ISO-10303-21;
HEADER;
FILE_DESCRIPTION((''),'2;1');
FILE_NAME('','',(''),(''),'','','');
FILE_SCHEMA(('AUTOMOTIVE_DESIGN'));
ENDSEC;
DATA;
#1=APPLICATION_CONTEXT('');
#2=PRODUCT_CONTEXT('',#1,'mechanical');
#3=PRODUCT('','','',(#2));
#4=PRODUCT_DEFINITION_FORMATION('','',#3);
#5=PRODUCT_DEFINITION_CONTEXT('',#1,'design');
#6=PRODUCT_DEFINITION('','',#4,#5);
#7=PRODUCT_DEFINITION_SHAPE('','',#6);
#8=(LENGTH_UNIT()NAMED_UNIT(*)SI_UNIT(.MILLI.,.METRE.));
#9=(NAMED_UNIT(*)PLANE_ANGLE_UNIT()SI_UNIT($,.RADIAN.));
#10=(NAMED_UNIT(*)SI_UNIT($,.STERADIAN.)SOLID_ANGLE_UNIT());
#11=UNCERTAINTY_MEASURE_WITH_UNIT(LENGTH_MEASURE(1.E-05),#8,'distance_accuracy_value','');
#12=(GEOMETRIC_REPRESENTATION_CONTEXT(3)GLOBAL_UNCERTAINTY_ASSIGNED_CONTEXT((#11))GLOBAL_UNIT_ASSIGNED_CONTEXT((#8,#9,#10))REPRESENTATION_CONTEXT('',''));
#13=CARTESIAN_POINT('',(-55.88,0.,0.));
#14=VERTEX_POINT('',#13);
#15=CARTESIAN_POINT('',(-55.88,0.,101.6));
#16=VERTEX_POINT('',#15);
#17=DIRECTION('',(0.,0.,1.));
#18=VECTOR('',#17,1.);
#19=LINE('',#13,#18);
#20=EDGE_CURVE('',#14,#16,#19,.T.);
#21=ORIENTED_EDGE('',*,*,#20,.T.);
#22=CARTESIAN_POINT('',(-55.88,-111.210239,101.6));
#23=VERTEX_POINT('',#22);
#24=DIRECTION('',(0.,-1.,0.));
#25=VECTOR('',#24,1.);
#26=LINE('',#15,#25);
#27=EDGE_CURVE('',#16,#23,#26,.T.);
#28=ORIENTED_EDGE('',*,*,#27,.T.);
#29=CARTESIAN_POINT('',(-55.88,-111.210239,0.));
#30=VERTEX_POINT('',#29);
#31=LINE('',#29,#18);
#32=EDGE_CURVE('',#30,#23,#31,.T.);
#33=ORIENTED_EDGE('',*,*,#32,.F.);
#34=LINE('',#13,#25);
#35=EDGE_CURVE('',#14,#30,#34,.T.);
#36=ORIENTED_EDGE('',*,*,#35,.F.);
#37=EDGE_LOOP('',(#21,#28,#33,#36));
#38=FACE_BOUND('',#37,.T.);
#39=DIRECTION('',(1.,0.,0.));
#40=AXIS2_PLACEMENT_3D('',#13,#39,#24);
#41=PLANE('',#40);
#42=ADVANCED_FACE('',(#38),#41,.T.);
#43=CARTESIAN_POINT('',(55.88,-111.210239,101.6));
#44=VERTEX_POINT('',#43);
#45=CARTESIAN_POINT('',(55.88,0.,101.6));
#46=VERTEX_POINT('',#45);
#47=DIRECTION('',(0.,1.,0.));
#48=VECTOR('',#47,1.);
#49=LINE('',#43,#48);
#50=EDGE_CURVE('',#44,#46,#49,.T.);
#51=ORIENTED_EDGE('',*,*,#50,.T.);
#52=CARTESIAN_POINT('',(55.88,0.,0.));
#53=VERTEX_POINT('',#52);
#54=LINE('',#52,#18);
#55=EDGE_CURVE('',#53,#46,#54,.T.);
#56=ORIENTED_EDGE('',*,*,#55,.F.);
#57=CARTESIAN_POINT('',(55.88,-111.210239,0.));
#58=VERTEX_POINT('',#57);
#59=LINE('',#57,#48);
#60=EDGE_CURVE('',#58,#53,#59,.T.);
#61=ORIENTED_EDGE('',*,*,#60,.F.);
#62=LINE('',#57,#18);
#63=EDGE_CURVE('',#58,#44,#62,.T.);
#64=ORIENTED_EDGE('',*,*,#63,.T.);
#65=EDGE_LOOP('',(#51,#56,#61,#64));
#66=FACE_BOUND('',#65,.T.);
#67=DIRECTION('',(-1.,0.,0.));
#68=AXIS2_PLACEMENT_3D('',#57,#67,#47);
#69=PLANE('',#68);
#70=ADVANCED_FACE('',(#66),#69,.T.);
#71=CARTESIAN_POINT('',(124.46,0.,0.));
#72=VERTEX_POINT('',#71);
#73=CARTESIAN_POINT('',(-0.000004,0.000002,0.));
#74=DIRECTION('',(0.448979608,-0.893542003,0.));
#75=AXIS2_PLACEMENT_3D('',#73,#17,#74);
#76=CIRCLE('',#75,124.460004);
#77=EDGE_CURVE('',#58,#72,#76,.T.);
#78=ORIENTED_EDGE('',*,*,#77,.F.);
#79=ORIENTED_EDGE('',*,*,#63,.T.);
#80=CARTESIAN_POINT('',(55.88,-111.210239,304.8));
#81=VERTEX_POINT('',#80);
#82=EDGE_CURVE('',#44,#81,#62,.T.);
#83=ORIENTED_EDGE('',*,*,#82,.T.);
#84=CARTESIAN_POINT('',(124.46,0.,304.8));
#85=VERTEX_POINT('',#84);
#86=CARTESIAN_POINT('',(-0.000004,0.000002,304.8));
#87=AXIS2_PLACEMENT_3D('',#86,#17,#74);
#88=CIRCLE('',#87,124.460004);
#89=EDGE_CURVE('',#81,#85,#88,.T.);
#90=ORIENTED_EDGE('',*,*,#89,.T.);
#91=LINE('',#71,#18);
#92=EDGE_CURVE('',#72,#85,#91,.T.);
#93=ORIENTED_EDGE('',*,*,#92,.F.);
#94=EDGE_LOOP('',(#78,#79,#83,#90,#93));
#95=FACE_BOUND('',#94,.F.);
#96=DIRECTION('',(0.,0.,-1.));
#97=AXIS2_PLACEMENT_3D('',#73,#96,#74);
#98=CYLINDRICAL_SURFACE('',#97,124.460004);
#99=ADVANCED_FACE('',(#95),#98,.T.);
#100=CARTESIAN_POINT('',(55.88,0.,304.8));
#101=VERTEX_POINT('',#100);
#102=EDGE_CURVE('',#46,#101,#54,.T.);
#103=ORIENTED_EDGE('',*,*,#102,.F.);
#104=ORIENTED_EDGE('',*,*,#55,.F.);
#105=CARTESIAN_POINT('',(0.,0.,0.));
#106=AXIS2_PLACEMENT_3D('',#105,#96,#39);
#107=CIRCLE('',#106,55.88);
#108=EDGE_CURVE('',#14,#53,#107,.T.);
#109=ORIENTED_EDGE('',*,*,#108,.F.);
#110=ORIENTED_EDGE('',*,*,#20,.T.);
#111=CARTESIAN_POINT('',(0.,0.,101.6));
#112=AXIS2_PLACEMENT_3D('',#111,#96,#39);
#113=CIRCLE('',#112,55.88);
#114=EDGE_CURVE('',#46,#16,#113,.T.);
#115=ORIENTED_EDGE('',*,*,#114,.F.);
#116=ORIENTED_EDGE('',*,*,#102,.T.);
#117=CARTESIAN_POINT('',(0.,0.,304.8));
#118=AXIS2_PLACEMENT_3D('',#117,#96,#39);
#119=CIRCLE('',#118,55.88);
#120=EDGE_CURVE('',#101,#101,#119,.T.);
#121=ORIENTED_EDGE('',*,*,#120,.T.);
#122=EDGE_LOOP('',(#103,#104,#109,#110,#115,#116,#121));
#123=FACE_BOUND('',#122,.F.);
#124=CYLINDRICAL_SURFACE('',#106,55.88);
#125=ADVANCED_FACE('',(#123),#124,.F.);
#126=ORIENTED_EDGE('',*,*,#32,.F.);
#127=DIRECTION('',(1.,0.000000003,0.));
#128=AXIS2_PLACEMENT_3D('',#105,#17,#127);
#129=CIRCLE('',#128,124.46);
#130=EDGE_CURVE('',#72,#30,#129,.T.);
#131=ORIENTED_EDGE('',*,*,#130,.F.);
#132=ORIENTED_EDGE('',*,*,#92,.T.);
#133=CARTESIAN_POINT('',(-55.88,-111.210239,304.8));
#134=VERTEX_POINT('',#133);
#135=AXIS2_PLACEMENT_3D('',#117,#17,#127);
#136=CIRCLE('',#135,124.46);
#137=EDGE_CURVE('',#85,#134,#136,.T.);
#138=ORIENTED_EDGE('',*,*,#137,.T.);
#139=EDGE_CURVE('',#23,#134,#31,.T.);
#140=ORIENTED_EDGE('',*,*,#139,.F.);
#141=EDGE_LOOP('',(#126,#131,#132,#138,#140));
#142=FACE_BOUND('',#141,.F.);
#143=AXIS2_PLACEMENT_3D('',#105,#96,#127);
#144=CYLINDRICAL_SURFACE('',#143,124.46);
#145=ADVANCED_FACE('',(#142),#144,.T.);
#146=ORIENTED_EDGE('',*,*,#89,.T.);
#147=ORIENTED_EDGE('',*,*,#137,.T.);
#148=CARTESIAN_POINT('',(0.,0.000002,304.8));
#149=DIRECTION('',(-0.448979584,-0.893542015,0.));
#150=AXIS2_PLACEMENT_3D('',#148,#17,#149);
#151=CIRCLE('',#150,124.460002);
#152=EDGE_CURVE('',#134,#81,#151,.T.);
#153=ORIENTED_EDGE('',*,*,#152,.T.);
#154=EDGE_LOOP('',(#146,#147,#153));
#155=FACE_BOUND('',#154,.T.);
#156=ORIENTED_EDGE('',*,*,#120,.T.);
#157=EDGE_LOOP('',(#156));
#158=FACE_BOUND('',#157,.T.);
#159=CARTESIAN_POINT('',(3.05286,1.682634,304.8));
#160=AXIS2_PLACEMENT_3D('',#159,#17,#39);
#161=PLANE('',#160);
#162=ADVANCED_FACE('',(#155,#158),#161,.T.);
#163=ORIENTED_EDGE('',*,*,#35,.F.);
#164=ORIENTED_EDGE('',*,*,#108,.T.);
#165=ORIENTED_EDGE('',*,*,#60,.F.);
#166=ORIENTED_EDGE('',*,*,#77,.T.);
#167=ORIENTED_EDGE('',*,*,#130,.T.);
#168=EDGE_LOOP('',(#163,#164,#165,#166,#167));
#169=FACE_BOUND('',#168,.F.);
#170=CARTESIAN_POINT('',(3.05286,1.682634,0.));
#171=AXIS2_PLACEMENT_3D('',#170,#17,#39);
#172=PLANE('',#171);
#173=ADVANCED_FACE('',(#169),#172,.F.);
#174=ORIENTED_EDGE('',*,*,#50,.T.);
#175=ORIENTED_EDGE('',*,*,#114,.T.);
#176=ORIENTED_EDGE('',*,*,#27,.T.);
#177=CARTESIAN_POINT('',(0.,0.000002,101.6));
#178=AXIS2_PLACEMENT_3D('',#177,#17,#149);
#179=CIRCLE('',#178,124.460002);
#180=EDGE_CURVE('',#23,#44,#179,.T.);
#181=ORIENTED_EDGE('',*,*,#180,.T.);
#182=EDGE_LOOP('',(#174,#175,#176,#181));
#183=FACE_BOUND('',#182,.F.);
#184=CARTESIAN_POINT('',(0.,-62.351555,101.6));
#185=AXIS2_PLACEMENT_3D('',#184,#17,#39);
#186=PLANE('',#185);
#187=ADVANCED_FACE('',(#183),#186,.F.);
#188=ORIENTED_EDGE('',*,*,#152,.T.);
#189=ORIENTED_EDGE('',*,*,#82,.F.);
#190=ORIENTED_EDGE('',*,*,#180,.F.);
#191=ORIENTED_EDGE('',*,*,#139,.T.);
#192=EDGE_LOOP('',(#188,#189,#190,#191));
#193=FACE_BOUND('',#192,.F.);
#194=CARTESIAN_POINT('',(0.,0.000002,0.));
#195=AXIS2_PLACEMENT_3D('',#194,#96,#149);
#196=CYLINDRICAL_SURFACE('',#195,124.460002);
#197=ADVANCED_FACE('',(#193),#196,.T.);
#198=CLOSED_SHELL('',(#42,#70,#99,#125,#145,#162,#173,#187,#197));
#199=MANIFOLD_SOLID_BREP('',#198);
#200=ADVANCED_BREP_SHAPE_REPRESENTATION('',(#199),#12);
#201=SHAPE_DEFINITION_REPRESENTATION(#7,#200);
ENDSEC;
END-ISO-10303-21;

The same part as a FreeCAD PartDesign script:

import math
import FreeCAD as App
import Part
import Sketcher
Q = App.Units.Quantity

doc = App.newDocument("Part")
params = doc.addObject("Spreadsheet::Sheet", "Params")
for row, (alias, value) in enumerate([
    ("sketch1_diameter", "4.4 in"),
    ("sketch1_radius", "4.9000001 in"),
    ("pad1_length", "12 in"),
    ("sketch2_radius", "4.9000001 in"),
    ("sketch2_radius2", "2.2 in"),
    ("pocket1_length", "4 in"),
], start=1):
    params.set(f"A{row}", alias)
    params.set(f"B{row}", "=" + value)
    params.setAlias(f"B{row}", alias)

body = doc.addObject("PartDesign::Body", "Body")

sketch1 = body.newObject("Sketcher::SketchObject", "Sketch")
sketch1.AttachmentSupport = (doc.getObject("XY_Plane"), [""])
sketch1.MapMode = "FlatFace"
sketch1.addGeometry(Part.ArcOfCircle(Part.Circle(App.Vector(0, 0, 0), App.Vector(0, 0, 1), 124), math.radians(-63), math.radians(0)), False)
sketch1.addGeometry(Part.ArcOfCircle(Part.Circle(App.Vector(0, 0, 0), App.Vector(0, 0, 1), 124), math.radians(0), math.radians(243)), False)
sketch1.addGeometry(Part.ArcOfCircle(Part.Circle(App.Vector(0, 0, 0), App.Vector(0, 0, 1), 124), math.radians(-117), math.radians(-63)), False)
sketch1.addGeometry(Part.Circle(App.Vector(0, 0, 0), App.Vector(0, 0, 1), 56), False)
sketch1.addConstraint(Sketcher.Constraint("Tangent", 0, 2, 1, 1))
sketch1.addConstraint(Sketcher.Constraint("Tangent", 1, 2, 2, 1))
sketch1.addConstraint(Sketcher.Constraint("Tangent", 2, 2, 0, 1))
sketch1.addConstraint(Sketcher.Constraint("Coincident", 0, 3, -1, 1))
sketch1.addConstraint(Sketcher.Constraint("Coincident", 3, 3, -1, 1))
sketch1.addConstraint(Sketcher.Constraint("PointOnObject", 0, 2, -1))
sketch1.addConstraint(Sketcher.Constraint("Horizontal", 1, 2, 2, 2))
sketch1.addConstraint(Sketcher.Constraint("Diameter", 3, Q("4.4 in")))
sketch1.addConstraint(Sketcher.Constraint("Radius", 0, Q("4.9000001 in")))
sketch1.addConstraint(Sketcher.Constraint("DistanceX", 1, 2, -1, 1, Q("2.2 in")))
sketch1.setExpression("Constraints[7]", "Params.sketch1_diameter")
sketch1.setExpression("Constraints[8]", "Params.sketch1_radius")
pad1 = body.newObject("PartDesign::Pad", "Pad")
pad1.Profile = sketch1
pad1.setExpression("Length", "Params.pad1_length")

sketch2 = body.newObject("Sketcher::SketchObject", "Sketch001")
sketch2.AttachmentSupport = (doc.getObject("XY_Plane"), [""])
sketch2.MapMode = "FlatFace"
sketch2.addGeometry(Part.LineSegment(App.Vector(-56, 0, 0), App.Vector(-56, -111, 0)), False)
sketch2.addGeometry(Part.ArcOfCircle(Part.Circle(App.Vector(0, 0, 0), App.Vector(0, 0, 1), 124), math.radians(-117), math.radians(-63)), False)
sketch2.addGeometry(Part.LineSegment(App.Vector(56, -111, 0), App.Vector(56, 0, 0)), False)
sketch2.addGeometry(Part.ArcOfCircle(Part.Circle(App.Vector(0, 0, 0), App.Vector(0, 0, 1), 56), math.radians(180), math.radians(360)), False)
sketch2.addConstraint(Sketcher.Constraint("Coincident", 0, 2, 1, 1))
sketch2.addConstraint(Sketcher.Constraint("Coincident", 1, 2, 2, 1))
sketch2.addConstraint(Sketcher.Constraint("Tangent", 2, 2, 3, 2))
sketch2.addConstraint(Sketcher.Constraint("Tangent", 3, 1, 0, 1))
sketch2.addConstraint(Sketcher.Constraint("Vertical", 0))
sketch2.addConstraint(Sketcher.Constraint("Vertical", 2))
sketch2.addConstraint(Sketcher.Constraint("Coincident", 1, 3, -1, 1))
sketch2.addConstraint(Sketcher.Constraint("Coincident", 3, 3, -1, 1))
sketch2.addConstraint(Sketcher.Constraint("Radius", 1, Q("4.9000001 in")))
sketch2.addConstraint(Sketcher.Constraint("Radius", 3, Q("2.2 in")))
sketch2.setExpression("Constraints[8]", "Params.sketch2_radius")
sketch2.setExpression("Constraints[9]", "Params.sketch2_radius2")
pocket1 = body.newObject("PartDesign::Pocket", "Pocket")
pocket1.Profile = sketch2
pocket1.setExpression("Length", "Params.pocket1_length")
pocket1.Reversed = True

doc.recompute()
